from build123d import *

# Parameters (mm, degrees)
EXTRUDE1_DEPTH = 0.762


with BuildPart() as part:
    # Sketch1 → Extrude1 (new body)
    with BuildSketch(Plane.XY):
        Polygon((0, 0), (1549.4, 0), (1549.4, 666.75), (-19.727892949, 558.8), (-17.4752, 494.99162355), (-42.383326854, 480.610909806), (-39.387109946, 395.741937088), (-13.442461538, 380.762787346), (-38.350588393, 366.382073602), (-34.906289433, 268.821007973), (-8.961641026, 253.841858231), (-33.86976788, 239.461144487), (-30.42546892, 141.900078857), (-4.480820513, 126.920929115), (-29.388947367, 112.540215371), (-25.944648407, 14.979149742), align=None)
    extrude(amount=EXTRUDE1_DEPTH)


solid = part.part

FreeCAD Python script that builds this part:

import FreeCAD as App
import Part
import Sketcher

V = App.Vector
Q = App.Units.Quantity


def add_polygon(sketch, points):
    """Adds a closed chain of lines whose ends are joined by coincident constraints."""
    first, n = sketch.GeometryCount, len(points)
    for a, b in zip(points, points[1:] + points[:1]):
        sketch.addGeometry(Part.LineSegment(App.Vector(*a, 0), App.Vector(*b, 0)), False)
    for i in range(n):
        sketch.addConstraint(Sketcher.Constraint("Coincident", first + i, 2, first + (i + 1) % n, 1))

doc = App.newDocument("Part")
params = doc.addObject("Spreadsheet::Sheet", "Params")
for row, (alias, value) in enumerate([
    ("sketch1_width", "61 in"),
    ("sketch1_height", "26.25 in"),
    ("pad1_length", "0.03 in"),
], start=1):
    params.set(f"A{row}", alias)
    params.set(f"B{row}", "=" + value)
    params.setAlias(f"B{row}", alias)

body = doc.addObject("PartDesign::Body", "Body")

sketch1 = body.newObject("Sketcher::SketchObject", "Sketch")
sketch1.AttachmentSupport = (doc.getObject("XY_Plane"), [""])
sketch1.MapMode = "FlatFace"
add_polygon(sketch1, [(0, 0), (1549.4, 0), (1549.4, 666.75), (-19.727893, 558.8), (-17.4752, 494.991624), (-42.383327, 480.61091), (-39.38711, 395.741937), (-13.442462, 380.762787), (-38.350588, 366.382074), (-34.906289, 268.821008), (-8.961641, 253.841858), (-33.869768, 239.461144), (-30.425469, 141.900079), (-4.480821, 126.920929), (-29.388947, 112.540215), (-25.944648, 14.97915)])
sketch1.addConstraint(Sketcher.Constraint("Horizontal", 0))
sketch1.addConstraint(Sketcher.Constraint("Vertical", 1))
sketch1.addConstraint(Sketcher.Constraint("Coincident", 15, 2, -1, 1))
sketch1.addConstraint(Sketcher.Constraint("Parallel", 3, 5))
sketch1.addConstraint(Sketcher.Constraint("Parallel", 4, 7))
sketch1.addConstraint(Sketcher.Constraint("Parallel", 5, 8))
sketch1.addConstraint(Sketcher.Constraint("Parallel", 6, 9))
sketch1.addConstraint(Sketcher.Constraint("Parallel", 7, 10))
sketch1.addConstraint(Sketcher.Constraint("Parallel", 8, 11))
sketch1.addConstraint(Sketcher.Constraint("Parallel", 9, 12))
sketch1.addConstraint(Sketcher.Constraint("Parallel", 10, 13))
sketch1.addConstraint(Sketcher.Constraint("Parallel", 11, 14))
sketch1.addConstraint(Sketcher.Constraint("Parallel", 12, 15))
sketch1.addConstraint(Sketcher.Constraint("Equal", 4, 7))
sketch1.addConstraint(Sketcher.Constraint("Equal", 6, 9))
sketch1.addConstraint(Sketcher.Constraint("Equal", 7, 10))
sketch1.addConstraint(Sketcher.Constraint("Equal", 8, 11))
sketch1.addConstraint(Sketcher.Constraint("Equal", 9, 12))
sketch1.addConstraint(Sketcher.Constraint("Equal", 10, 13))
sketch1.addConstraint(Sketcher.Constraint("Equal", 11, 14))
sketch1.addConstraint(Sketcher.Constraint("Equal", 12, 15))
sketch1.addConstraint(Sketcher.Constraint("DistanceX", 0, 1, 0, 2, Q("61 in")))
sketch1.addConstraint(Sketcher.Constraint("DistanceY", -1, 1, 2, 2, Q("22 in")))
sketch1.addConstraint(Sketcher.Constraint("Angle", 4, Q("-150 deg")))
sketch1.addConstraint(Sketcher.Constraint("Angle", 6, Q("-30 deg")))
sketch1.addConstraint(Sketcher.Constraint("DistanceY", 1, 1, 1, 2, Q("26.25 in")))
sketch1.addConstraint(Sketcher.Constraint("DistanceX", 3, 2, -1, 1, Q("0.688 in")))
sketch1.addConstraint(Sketcher.Constraint("DistanceY", 7, 2, 5, 2, Q("1.1559001 in")))
sketch1.addConstraint(Sketcher.Constraint("Distance", 6, 29.958299))
sketch1.addConstraint(Sketcher.Constraint("DistanceX", 7, 2, 8, 2, 3.444299))
sketch1.addConstraint(Sketcher.Constraint("DistanceY", 8, 2, 4, 2, 211.789902))
sketch1.setExpression("Constraints[37]", "Params.sketch1_width")
sketch1.setExpression("Constraints[41]", "Params.sketch1_height")
pad1 = body.newObject("PartDesign::Pad", "Pad")
pad1.Profile = sketch1
pad1.setExpression("Length", "Params.pad1_length")

doc.recompute()
